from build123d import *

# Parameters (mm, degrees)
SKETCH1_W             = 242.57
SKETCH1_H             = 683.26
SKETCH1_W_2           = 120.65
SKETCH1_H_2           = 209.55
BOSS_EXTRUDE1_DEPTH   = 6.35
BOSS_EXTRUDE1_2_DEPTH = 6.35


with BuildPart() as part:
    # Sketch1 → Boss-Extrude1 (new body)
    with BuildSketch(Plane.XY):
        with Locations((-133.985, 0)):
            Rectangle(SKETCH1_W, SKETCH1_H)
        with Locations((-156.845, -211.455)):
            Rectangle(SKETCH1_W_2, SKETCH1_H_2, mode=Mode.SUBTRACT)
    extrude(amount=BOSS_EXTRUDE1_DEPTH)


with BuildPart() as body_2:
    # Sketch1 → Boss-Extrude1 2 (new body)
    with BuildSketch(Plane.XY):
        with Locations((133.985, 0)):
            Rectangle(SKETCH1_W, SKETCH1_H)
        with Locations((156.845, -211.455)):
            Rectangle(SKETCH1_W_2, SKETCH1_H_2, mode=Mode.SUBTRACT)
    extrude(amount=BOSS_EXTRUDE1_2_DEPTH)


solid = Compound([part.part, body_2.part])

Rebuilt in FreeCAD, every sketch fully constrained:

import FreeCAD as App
import Part
import Sketcher
from FreeCAD import Vector
Q = App.Units.Quantity


def add_polygon(sketch, points):
    """Adds a closed chain of lines whose ends are joined by coincident constraints."""
    first, n = sketch.GeometryCount, len(points)
    for a, b in zip(points, points[1:] + points[:1]):
        sketch.addGeometry(Part.LineSegment(App.Vector(*a, 0), App.Vector(*b, 0)), False)
    for i in range(n):
        sketch.addConstraint(Sketcher.Constraint("Coincident", first + i, 2, first + (i + 1) % n, 1))

doc = App.newDocument("Part")
params = doc.addObject("Spreadsheet::Sheet", "Params")
for row, (alias, value) in enumerate([
    ("sketch1_height", "26.9 in"),
    ("sketch1_width", "9.55 in"),
    ("sketch1_width2", "4.75 in"),
    ("sketch1_height2", "8.25 in"),
    ("pad1_length", "0.25 in"),
    ("sketch2_height", "26.9 in"),
    ("sketch2_width", "9.55 in"),
    ("sketch2_width2", "4.75 in"),
    ("sketch2_height2", "8.25 in"),
    ("pad2_length", "0.25 in"),
], start=1):
    params.set(f"A{row}", alias)
    params.set(f"B{row}", "=" + value)
    params.setAlias(f"B{row}", alias)

body = doc.addObject("PartDesign::Body", "Body")

sketch1 = body.newObject("Sketcher::SketchObject", "Sketch")
sketch1.AttachmentSupport = (doc.getObject("XY_Plane"), [""])
sketch1.MapMode = "FlatFace"
add_polygon(sketch1, [(-255, 342), (-255, -342), (-13, -342), (-13, 342)])
add_polygon(sketch1, [(-97, -316), (-217, -316), (-217, -107), (-97, -107)])
sketch1.addConstraint(Sketcher.Constraint("Vertical", 0))
sketch1.addConstraint(Sketcher.Constraint("Horizontal", 1))
sketch1.addConstraint(Sketcher.Constraint("Vertical", 2))
sketch1.addConstraint(Sketcher.Constraint("Horizontal", 3))
sketch1.addConstraint(Sketcher.Constraint("Horizontal", 4))
sketch1.addConstraint(Sketcher.Constraint("Vertical", 5))
sketch1.addConstraint(Sketcher.Constraint("Horizontal", 6))
sketch1.addConstraint(Sketcher.Constraint("Vertical", 7))
sketch1.addConstraint(Sketcher.Constraint("DistanceY", 0, 2, 0, 1, Q("26.9 in")))
sketch1.addConstraint(Sketcher.Constraint("DistanceY", 0, 2, 4, 2, Q("1 in")))
sketch1.addConstraint(Sketcher.Constraint("DistanceX", 1, 1, 1, 2, Q("9.55 in")))
sketch1.addConstraint(Sketcher.Constraint("DistanceX", 4, 2, 4, 1, Q("4.75 in")))
sketch1.addConstraint(Sketcher.Constraint("DistanceY", 5, 1, 5, 2, Q("8.25 in")))
sketch1.addConstraint(Sketcher.Constraint("DistanceX", 1, 2, -1, 1, Q("0.5 in")))
sketch1.addConstraint(Sketcher.Constraint("DistanceY", 5, 2, -1, 1, Q("4.2 in")))
sketch1.addConstraint(Sketcher.Constraint("DistanceX", 6, 2, -1, 1, Q("3.8 in")))
sketch1.setExpression("Constraints[16]", "Params.sketch1_height")
sketch1.setExpression("Constraints[18]", "Params.sketch1_width")
sketch1.setExpression("Constraints[19]", "Params.sketch1_width2")
sketch1.setExpression("Constraints[20]", "Params.sketch1_height2")
pad1 = body.newObject("PartDesign::Pad", "Pad")
pad1.Profile = sketch1
pad1.setExpression("Length", "Params.pad1_length")
body2 = doc.addObject("PartDesign::Body", "Body001")

sketch2 = body2.newObject("Sketcher::SketchObject", "Sketch001")
sketch2.AttachmentSupport = (doc.getObject("XY_Plane001"), [""])
sketch2.MapMode = "FlatFace"
add_polygon(sketch2, [(13, 342), (13, -342), (255, -342), (255, 342)])
add_polygon(sketch2, [(217, -316), (97, -316), (97, -107), (217, -107)])
sketch2.addConstraint(Sketcher.Constraint("Vertical", 0))
sketch2.addConstraint(Sketcher.Constraint("Horizontal", 1))
sketch2.addConstraint(Sketcher.Constraint("Vertical", 2))
sketch2.addConstraint(Sketcher.Constraint("Horizontal", 3))
sketch2.addConstraint(Sketcher.Constraint("Horizontal", 4))
sketch2.addConstraint(Sketcher.Constraint("Vertical", 5))
sketch2.addConstraint(Sketcher.Constraint("Horizontal", 6))
sketch2.addConstraint(Sketcher.Constraint("Vertical", 7))
sketch2.addConstraint(Sketcher.Constraint("DistanceY", 0, 2, 0, 1, Q("26.9 in")))
sketch2.addConstraint(Sketcher.Constraint("DistanceY", 0, 2, 4, 2, Q("1 in")))
sketch2.addConstraint(Sketcher.Constraint("DistanceX", 1, 1, 1, 2, Q("9.55 in")))
sketch2.addConstraint(Sketcher.Constraint("DistanceX", 4, 2, 4, 1, Q("4.75 in")))
sketch2.addConstraint(Sketcher.Constraint("DistanceY", 5, 1, 5, 2, Q("8.25 in")))
sketch2.addConstraint(Sketcher.Constraint("DistanceX", -1, 1, 0, 2, Q("0.5 in")))
sketch2.addConstraint(Sketcher.Constraint("DistanceX", -1, 1, 4, 2, Q("3.8 in")))
sketch2.addConstraint(Sketcher.Constraint("DistanceY", 5, 2, -1, 1, Q("4.2 in")))
sketch2.setExpression("Constraints[16]", "Params.sketch2_height")
sketch2.setExpression("Constraints[18]", "Params.sketch2_width")
sketch2.setExpression("Constraints[19]", "Params.sketch2_width2")
sketch2.setExpression("Constraints[20]", "Params.sketch2_height2")
pad2 = body2.newObject("PartDesign::Pad", "Pad001")
pad2.Profile = sketch2
pad2.setExpression("Length", "Params.pad2_length")

doc.recompute()
